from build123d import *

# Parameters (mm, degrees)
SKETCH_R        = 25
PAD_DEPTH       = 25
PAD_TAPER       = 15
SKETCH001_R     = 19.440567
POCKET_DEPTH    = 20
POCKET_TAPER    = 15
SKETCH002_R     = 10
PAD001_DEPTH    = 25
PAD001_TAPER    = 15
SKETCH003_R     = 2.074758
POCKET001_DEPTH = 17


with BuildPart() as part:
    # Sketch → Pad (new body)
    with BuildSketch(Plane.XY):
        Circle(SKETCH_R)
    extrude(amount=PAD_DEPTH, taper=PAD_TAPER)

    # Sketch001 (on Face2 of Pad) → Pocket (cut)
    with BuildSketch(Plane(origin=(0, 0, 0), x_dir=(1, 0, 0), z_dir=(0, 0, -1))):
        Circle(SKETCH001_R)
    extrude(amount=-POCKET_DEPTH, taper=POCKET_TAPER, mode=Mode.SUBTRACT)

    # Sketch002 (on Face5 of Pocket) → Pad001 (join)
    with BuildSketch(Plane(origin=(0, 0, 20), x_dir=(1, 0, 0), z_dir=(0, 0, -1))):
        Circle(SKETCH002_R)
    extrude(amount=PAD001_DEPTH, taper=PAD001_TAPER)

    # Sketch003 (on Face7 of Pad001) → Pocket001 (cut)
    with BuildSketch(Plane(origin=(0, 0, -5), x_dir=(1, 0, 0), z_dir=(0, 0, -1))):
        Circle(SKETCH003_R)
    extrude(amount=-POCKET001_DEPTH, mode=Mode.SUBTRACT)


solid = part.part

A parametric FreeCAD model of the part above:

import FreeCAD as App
import Part
import Sketcher

V = App.Vector
Q = App.Units.Quantity

doc = App.newDocument("Part")
body = doc.addObject("PartDesign::Body", "Body")

sketch1 = body.newObject("Sketcher::SketchObject", "Sketch")
sketch1.AttachmentSupport = (doc.getObject("XY_Plane"), [""])
sketch1.MapMode = "FlatFace"
sketch1.addGeometry(Part.Circle(V(0, 0, 0), V(0, 0, 1), 25), False)
sketch1.addConstraint(Sketcher.Constraint("Coincident", 0, 3, -1, 1))
sketch1.addConstraint(Sketcher.Constraint("Diameter", 0, Q("50 mm")))
pad1 = body.newObject("PartDesign::Pad", "Pad")
pad1.Profile = sketch1
pad1.Length = 25
pad1.TaperAngle = -15

sketch2 = body.newObject("Sketcher::SketchObject", "Sketch001")
sketch2.AttachmentSupport = (doc.getObject("XY_Plane"), [""])
sketch2.MapMode = "FlatFace"
sketch2.addGeometry(Part.Circle(V(0, 0, 0), V(0, 0, 1), 19.440567), False)
sketch2.addConstraint(Sketcher.Constraint("Coincident", 0, 3, -1, 1))
sketch2.addConstraint(Sketcher.Constraint("Diameter", 0, Q("38.881134 mm")))
pocket1 = body.newObject("PartDesign::Pocket", "Pocket")
pocket1.Profile = sketch2
pocket1.Length = 20
pocket1.Reversed = True
pocket1.TaperAngle = -15

sketch3 = body.newObject("Sketcher::SketchObject", "Sketch002")
sketch3.AttachmentSupport = (doc.getObject("XY_Plane"), [""])
sketch3.MapMode = "FlatFace"
sketch3.AttachmentOffset = App.Placement(V(0, 0, 20), App.Rotation())
sketch3.addGeometry(Part.Circle(V(0, 0, 0), V(0, 0, 1), 10), False)
sketch3.addConstraint(Sketcher.Constraint("Coincident", 0, 3, -1, 1))
sketch3.addConstraint(Sketcher.Constraint("Diameter", 0, Q("20 mm")))
pad2 = body.newObject("PartDesign::Pad", "Pad001")
pad2.Profile = sketch3
pad2.Length = 25
pad2.Reversed = True
pad2.TaperAngle = -15

sketch4 = body.newObject("Sketcher::SketchObject", "Sketch003")
sketch4.AttachmentSupport = (doc.getObject("XY_Plane"), [""])
sketch4.MapMode = "FlatFace"
sketch4.AttachmentOffset = App.Placement(V(0, 0, -5), App.Rotation())
sketch4.addGeometry(Part.Circle(V(0, 0, 0), V(0, 0, 1), 2.074758), False)
sketch4.addConstraint(Sketcher.Constraint("Coincident", 0, 3, -1, 1))
sketch4.addConstraint(Sketcher.Constraint("Diameter", 0, Q("4.149516 mm")))
pocket2 = body.newObject("PartDesign::Pocket", "Pocket001")
pocket2.Profile = sketch4
pocket2.Length = 17
pocket2.Reversed = True

doc.recompute()
